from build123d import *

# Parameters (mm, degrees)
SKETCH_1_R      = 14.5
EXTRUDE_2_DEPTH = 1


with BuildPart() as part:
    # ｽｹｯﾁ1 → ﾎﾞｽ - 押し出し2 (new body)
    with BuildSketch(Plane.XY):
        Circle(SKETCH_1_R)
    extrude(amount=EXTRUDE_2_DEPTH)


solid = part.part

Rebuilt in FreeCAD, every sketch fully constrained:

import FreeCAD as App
import Part
import Sketcher

V = App.Vector

doc = App.newDocument("Part")
params = doc.addObject("Spreadsheet::Sheet", "Params")
for row, (alias, value) in enumerate([
    ("sketch1_diameter", "29 mm"),
    ("pad1_length", "1 mm"),
], start=1):
    params.set(f"A{row}", alias)
    params.set(f"B{row}", "=" + value)
    params.setAlias(f"B{row}", alias)

body = doc.addObject("PartDesign::Body", "Body")

# Sketch on XY plane
sketch1 = doc.addObject("Sketcher::SketchObject", "Sketch")
body.addObject(sketch1)
sketch1.AttachmentSupport = (doc.XY_Plane, [""])
sketch1.MapMode = "FlatFace"
sketch1.addGeometry(Part.Circle(V(0, 0, 0), V(0, 0, 1), 14), False)
sketch1.addConstraint([
    Sketcher.Constraint("Coincident", 0, 3, -1, 1),
    Sketcher.Constraint("Diameter", 0, 29.0),
])
sketch1.setExpression("Constraints[1]", "Params.sketch1_diameter")
pad1 = doc.addObject("PartDesign::Pad", "Pad")
body.addObject(pad1)
pad1.Profile = sketch1
pad1.setExpression("Length", "Params.pad1_length")

doc.recompute()
